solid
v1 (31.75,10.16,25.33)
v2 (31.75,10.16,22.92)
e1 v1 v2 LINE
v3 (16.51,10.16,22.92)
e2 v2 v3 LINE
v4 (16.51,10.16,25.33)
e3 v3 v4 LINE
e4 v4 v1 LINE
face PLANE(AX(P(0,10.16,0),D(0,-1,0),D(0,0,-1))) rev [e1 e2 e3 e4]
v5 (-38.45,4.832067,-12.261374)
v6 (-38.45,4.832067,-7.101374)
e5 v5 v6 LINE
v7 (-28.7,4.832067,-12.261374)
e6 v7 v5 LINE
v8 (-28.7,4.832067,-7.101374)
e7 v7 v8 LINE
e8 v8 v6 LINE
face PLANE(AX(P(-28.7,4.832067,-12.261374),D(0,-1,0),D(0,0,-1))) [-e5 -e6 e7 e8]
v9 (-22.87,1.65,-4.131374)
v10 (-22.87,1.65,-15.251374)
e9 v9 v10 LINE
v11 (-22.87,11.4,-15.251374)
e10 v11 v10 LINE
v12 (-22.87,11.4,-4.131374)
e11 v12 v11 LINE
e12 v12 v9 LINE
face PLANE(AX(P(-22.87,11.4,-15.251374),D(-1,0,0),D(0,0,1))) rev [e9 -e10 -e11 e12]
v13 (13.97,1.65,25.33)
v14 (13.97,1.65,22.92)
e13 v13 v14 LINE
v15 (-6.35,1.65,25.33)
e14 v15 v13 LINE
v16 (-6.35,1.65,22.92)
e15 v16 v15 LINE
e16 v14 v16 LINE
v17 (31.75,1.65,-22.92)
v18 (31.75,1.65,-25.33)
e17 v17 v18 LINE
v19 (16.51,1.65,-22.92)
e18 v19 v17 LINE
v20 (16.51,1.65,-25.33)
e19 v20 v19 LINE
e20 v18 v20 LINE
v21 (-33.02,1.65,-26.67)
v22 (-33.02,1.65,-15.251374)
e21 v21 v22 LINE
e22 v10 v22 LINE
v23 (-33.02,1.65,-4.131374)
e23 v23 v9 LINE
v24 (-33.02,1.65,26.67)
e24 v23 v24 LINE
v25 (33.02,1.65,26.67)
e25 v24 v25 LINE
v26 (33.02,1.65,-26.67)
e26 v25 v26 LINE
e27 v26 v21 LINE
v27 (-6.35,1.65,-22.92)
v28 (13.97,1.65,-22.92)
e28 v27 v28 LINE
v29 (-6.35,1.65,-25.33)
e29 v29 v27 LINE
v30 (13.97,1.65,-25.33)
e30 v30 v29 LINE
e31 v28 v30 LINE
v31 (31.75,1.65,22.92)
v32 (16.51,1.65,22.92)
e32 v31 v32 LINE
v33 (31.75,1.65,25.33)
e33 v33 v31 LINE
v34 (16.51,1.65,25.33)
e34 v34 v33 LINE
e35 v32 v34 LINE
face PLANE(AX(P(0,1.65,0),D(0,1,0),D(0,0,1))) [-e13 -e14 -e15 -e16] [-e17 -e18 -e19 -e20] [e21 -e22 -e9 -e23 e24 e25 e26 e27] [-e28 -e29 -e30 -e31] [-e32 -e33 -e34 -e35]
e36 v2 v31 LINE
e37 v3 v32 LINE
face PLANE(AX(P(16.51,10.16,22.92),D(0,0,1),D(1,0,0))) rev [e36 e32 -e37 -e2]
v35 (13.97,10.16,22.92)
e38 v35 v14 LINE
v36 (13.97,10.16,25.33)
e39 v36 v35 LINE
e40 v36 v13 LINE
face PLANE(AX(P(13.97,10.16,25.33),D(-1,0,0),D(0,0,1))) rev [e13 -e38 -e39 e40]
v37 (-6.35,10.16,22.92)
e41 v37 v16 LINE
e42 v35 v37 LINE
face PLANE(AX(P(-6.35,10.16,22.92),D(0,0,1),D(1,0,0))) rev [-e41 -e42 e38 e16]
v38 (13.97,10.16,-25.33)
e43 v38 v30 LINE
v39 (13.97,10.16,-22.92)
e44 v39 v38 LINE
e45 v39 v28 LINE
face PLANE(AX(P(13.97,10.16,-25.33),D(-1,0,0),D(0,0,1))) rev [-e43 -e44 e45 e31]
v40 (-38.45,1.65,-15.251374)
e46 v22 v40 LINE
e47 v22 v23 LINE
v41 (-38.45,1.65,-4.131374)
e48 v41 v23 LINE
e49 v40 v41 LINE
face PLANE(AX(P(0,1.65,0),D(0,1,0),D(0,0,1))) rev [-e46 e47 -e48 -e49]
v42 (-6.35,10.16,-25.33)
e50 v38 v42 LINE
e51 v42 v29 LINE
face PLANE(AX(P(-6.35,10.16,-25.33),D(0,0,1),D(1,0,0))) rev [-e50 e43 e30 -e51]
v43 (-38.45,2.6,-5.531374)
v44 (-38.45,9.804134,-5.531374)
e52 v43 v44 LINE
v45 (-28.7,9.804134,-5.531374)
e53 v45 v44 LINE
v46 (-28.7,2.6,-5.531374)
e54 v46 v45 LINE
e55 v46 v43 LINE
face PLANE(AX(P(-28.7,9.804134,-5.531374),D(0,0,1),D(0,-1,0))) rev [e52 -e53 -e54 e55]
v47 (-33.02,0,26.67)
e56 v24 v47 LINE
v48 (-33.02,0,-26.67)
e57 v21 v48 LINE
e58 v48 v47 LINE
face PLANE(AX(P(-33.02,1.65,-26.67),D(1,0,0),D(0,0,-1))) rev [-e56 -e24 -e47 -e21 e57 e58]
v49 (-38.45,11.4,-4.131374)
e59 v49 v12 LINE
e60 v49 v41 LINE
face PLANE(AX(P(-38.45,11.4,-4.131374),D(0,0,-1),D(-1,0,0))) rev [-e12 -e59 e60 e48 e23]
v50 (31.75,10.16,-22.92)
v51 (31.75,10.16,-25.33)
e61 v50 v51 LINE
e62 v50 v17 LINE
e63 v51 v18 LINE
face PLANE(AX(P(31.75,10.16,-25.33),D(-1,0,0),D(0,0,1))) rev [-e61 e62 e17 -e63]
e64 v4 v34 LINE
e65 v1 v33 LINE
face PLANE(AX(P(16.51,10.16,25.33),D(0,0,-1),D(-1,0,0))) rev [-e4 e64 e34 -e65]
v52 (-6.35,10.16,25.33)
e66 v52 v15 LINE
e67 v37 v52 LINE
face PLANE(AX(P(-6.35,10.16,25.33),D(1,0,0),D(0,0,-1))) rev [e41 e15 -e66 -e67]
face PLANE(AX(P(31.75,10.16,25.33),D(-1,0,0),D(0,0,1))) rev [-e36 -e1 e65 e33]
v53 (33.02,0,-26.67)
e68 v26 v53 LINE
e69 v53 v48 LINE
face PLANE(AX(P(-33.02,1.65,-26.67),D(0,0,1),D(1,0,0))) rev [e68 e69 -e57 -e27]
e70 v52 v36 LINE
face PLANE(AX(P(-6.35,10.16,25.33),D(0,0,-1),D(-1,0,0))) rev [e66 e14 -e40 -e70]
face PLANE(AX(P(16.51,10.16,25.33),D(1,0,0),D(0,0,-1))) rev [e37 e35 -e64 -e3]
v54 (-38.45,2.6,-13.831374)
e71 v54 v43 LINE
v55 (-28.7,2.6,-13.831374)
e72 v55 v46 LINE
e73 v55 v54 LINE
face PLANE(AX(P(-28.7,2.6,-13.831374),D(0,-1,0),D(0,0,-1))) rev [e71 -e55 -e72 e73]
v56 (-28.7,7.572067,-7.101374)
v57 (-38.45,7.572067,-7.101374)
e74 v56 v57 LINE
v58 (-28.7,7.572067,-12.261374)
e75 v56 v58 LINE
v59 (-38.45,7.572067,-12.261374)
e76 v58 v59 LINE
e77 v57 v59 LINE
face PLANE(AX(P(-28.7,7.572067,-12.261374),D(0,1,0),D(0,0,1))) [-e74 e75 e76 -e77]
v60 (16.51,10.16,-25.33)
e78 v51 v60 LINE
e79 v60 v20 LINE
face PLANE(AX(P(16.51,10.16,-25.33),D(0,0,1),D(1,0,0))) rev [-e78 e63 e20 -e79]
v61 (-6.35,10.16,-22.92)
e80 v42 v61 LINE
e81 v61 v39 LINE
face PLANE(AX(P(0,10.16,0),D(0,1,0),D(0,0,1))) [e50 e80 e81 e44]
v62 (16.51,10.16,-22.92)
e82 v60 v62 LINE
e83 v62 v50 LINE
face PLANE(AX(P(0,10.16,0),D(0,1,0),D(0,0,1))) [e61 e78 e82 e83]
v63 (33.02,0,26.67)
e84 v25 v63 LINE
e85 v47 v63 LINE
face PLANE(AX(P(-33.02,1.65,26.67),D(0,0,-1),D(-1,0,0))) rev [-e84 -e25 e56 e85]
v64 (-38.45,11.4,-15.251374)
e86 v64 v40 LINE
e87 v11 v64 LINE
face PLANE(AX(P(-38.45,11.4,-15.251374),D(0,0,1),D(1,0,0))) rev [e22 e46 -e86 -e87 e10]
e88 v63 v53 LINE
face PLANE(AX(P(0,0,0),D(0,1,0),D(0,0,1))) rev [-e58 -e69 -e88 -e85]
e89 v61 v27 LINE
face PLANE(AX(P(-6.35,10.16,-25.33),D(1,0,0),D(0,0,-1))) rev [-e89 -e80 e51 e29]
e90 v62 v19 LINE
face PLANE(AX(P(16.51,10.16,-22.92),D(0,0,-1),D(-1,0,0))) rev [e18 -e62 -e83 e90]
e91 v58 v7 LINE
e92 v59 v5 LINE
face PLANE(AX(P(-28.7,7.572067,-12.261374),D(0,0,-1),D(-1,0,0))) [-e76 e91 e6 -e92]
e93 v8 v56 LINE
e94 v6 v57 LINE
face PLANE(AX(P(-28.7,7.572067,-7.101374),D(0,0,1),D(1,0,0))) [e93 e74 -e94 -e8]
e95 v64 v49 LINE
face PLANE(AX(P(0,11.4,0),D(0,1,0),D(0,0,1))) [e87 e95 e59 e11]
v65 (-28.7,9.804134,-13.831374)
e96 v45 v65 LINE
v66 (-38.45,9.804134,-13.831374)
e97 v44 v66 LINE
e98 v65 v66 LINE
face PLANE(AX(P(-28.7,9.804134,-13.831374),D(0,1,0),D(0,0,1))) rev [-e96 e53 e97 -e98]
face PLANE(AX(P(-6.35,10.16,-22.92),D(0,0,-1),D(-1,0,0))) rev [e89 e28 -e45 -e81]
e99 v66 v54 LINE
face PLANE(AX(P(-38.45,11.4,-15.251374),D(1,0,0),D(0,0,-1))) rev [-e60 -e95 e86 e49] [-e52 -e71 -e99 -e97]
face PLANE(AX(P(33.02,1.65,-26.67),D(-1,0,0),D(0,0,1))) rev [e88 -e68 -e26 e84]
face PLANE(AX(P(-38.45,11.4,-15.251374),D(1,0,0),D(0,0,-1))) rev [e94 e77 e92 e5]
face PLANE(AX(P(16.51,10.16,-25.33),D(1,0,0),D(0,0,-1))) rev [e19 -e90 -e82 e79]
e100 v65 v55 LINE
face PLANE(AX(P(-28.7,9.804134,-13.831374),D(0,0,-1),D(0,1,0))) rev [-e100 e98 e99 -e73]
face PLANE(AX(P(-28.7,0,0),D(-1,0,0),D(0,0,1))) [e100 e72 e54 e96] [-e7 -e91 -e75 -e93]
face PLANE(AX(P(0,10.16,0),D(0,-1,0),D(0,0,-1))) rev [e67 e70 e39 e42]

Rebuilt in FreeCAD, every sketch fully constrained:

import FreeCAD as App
import Part
import Sketcher
Q = App.Units.Quantity


def add_polygon(sketch, points):
    """Adds a closed chain of lines whose ends are joined by coincident constraints."""
    first, n = sketch.GeometryCount, len(points)
    for a, b in zip(points, points[1:] + points[:1]):
        sketch.addGeometry(Part.LineSegment(App.Vector(*a, 0), App.Vector(*b, 0)), False)
    for i in range(n):
        sketch.addConstraint(Sketcher.Constraint("Coincident", first + i, 2, first + (i + 1) % n, 1))

doc = App.newDocument("Part")
body = doc.addObject("PartDesign::Body", "Body")

sketch1 = body.newObject("Sketcher::SketchObject", "Sketch")
sketch1.AttachmentSupport = (doc.getObject("XZ_Plane"), [""])
sketch1.MapMode = "FlatFace"
add_polygon(sketch1, [(-33, -27), (-33, 27), (33, 27), (33, -27)])
sketch1.addConstraint(Sketcher.Constraint("Vertical", 0))
sketch1.addConstraint(Sketcher.Constraint("Horizontal", 1))
sketch1.addConstraint(Sketcher.Constraint("Vertical", 2))
sketch1.addConstraint(Sketcher.Constraint("Horizontal", 3))
sketch1.addConstraint(Sketcher.Constraint("Symmetric", 0, 2, 2, 2, -1, 1))
sketch1.addConstraint(Sketcher.Constraint("DistanceX", 1, 1, 1, 2, Q("2.6 in")))
sketch1.addConstraint(Sketcher.Constraint("DistanceY", 0, 1, 0, 2, Q("2.1 in")))
pad1 = body.newObject("PartDesign::Pad", "Pad")
pad1.Profile = sketch1
pad1.Length = 1.65
pad1.Reversed = True

sketch2 = body.newObject("Sketcher::SketchObject", "Sketch001")
sketch2.AttachmentSupport = (doc.getObject("XZ_Plane"), [""])
sketch2.MapMode = "FlatFace"
sketch2.AttachmentOffset = App.Placement(App.Vector(0, 0, -1.65), App.Rotation())
add_polygon(sketch2, [(-38, -15), (-38, -4), (-23, -4), (-23, -15)])
sketch2.addConstraint(Sketcher.Constraint("Vertical", 0))
sketch2.addConstraint(Sketcher.Constraint("Horizontal", 1))
sketch2.addConstraint(Sketcher.Constraint("Vertical", 2))
sketch2.addConstraint(Sketcher.Constraint("Horizontal", 3))
sketch2.addConstraint(Sketcher.Constraint("DistanceX", 1, 1, 1, 2, 15.58))
sketch2.addConstraint(Sketcher.Constraint("DistanceY", 0, 1, 0, 2, 11.12))
sketch2.addConstraint(Sketcher.Constraint("DistanceX", 0, 2, -1, 1, 38.45))
sketch2.addConstraint(Sketcher.Constraint("DistanceY", 0, 2, -1, 1, 4.131374))
pad2 = body.newObject("PartDesign::Pad", "Pad001")
pad2.Profile = sketch2
pad2.Length = 9.75
pad2.Reversed = True

sketch3 = body.newObject("Sketcher::SketchObject", "Sketch002")
sketch3.AttachmentSupport = (doc.getObject("YZ_Plane"), [""])
sketch3.MapMode = "FlatFace"
sketch3.AttachmentOffset = App.Placement(App.Vector(0, 0, -38.45), App.Rotation())
add_polygon(sketch3, [(9.8, -13.8), (2.6, -13.8), (2.6, -5.5), (9.8, -5.5)])
add_polygon(sketch3, [(4.8, -7.1), (4.8, -12.3), (7.6, -12.3), (7.6, -7.1)])
sketch3.addConstraint(Sketcher.Constraint("Horizontal", 0))
sketch3.addConstraint(Sketcher.Constraint("Vertical", 1))
sketch3.addConstraint(Sketcher.Constraint("Horizontal", 2))
sketch3.addConstraint(Sketcher.Constraint("Vertical", 3))
sketch3.addConstraint(Sketcher.Constraint("Vertical", 4))
sketch3.addConstraint(Sketcher.Constraint("Horizontal", 5))
sketch3.addConstraint(Sketcher.Constraint("Vertical", 6))
sketch3.addConstraint(Sketcher.Constraint("Horizontal", 7))
sketch3.addConstraint(Sketcher.Constraint("DistanceX", 5, 1, 5, 2, 2.74))
sketch3.addConstraint(Sketcher.Constraint("DistanceY", 1, 1, 1, 2, 8.3))
sketch3.addConstraint(Sketcher.Constraint("DistanceY", 4, 2, 4, 1, 5.16))
sketch3.addConstraint(Sketcher.Constraint("DistanceX", -1, 1, 0, 2, 2.6))
sketch3.addConstraint(Sketcher.Constraint("DistanceY", 0, 2, 4, 2, 1.57))
sketch3.addConstraint(Sketcher.Constraint("DistanceX", 0, 2, 0, 1, 7.204134))
sketch3.addConstraint(Sketcher.Constraint("DistanceY", 0, 2, -1, 1, 13.831374))
sketch3.addConstraint(Sketcher.Constraint("DistanceX", -1, 1, 4, 2, 4.832067))
pocket1 = body.newObject("PartDesign::Pocket", "Pocket")
pocket1.Profile = sketch3
pocket1.Length = 9.75
pocket1.Reversed = True

sketch4 = body.newObject("Sketcher::SketchObject", "Sketch003")
sketch4.AttachmentSupport = (doc.getObject("XZ_Plane"), [""])
sketch4.MapMode = "FlatFace"
sketch4.AttachmentOffset = App.Placement(App.Vector(0, 0, -1.65), App.Rotation())
add_polygon(sketch4, [(16.5, 22.9), (16.5, 25.3), (31.8, 25.3), (31.8, 22.9)])
add_polygon(sketch4, [(-6.3, 22.9), (-6.3, 25.3), (14, 25.3), (14, 22.9)])
add_polygon(sketch4, [(16.5, -25.3), (16.5, -22.9), (31.8, -22.9), (31.8, -25.3)])
add_polygon(sketch4, [(-6.3, -25.3), (-6.3, -22.9), (14, -22.9), (14, -25.3)])
sketch4.addConstraint(Sketcher.Constraint("Vertical", 0))
sketch4.addConstraint(Sketcher.Constraint("Horizontal", 1))
sketch4.addConstraint(Sketcher.Constraint("Vertical", 2))
sketch4.addConstraint(Sketcher.Constraint("Horizontal", 3))
sketch4.addConstraint(Sketcher.Constraint("Vertical", 4))
sketch4.addConstraint(Sketcher.Constraint("Horizontal", 5))
sketch4.addConstraint(Sketcher.Constraint("Vertical", 6))
sketch4.addConstraint(Sketcher.Constraint("Horizontal", 7))
sketch4.addConstraint(Sketcher.Constraint("Vertical", 8))
sketch4.addConstraint(Sketcher.Constraint("Horizontal", 9))
sketch4.addConstraint(Sketcher.Constraint("Vertical", 10))
sketch4.addConstraint(Sketcher.Constraint("Horizontal", 11))
sketch4.addConstraint(Sketcher.Constraint("Vertical", 12))
sketch4.addConstraint(Sketcher.Constraint("Horizontal", 13))
sketch4.addConstraint(Sketcher.Constraint("Vertical", 14))
sketch4.addConstraint(Sketcher.Constraint("Horizontal", 15))
sketch4.addConstraint(Sketcher.Constraint("Symmetric", 3, 2, 8, 2, -1))
sketch4.addConstraint(Sketcher.Constraint("Symmetric", 1, 2, 10, 2, -1))
sketch4.addConstraint(Sketcher.Constraint("Symmetric", 7, 2, 12, 2, -1))
sketch4.addConstraint(Sketcher.Constraint("Symmetric", 5, 2, 14, 2, -1))
sketch4.addConstraint(Sketcher.Constraint("Horizontal", 1, 2, 4, 2))
sketch4.addConstraint(Sketcher.Constraint("Horizontal", 3, 2, 6, 2))
sketch4.addConstraint(Sketcher.Constraint("DistanceX", 1, 1, 1, 2, Q("0.6 in")))
sketch4.addConstraint(Sketcher.Constraint("DistanceX", 5, 1, 5, 2, Q("0.8 in")))
sketch4.addConstraint(Sketcher.Constraint("DistanceX", 4, 2, 0, 2, Q("0.9 in")))
sketch4.addConstraint(Sketcher.Constraint("DistanceX", -1, 1, 0, 2, Q("0.65 in")))
sketch4.addConstraint(Sketcher.Constraint("DistanceY", 0, 1, 0, 2, 2.41))
sketch4.addConstraint(Sketcher.Constraint("DistanceY", -1, 1, 0, 2, 25.33))
pad3 = body.newObject("PartDesign::Pad", "Pad002")
pad3.Profile = sketch4
pad3.Length = 8.51
pad3.Reversed = True

doc.recompute()
